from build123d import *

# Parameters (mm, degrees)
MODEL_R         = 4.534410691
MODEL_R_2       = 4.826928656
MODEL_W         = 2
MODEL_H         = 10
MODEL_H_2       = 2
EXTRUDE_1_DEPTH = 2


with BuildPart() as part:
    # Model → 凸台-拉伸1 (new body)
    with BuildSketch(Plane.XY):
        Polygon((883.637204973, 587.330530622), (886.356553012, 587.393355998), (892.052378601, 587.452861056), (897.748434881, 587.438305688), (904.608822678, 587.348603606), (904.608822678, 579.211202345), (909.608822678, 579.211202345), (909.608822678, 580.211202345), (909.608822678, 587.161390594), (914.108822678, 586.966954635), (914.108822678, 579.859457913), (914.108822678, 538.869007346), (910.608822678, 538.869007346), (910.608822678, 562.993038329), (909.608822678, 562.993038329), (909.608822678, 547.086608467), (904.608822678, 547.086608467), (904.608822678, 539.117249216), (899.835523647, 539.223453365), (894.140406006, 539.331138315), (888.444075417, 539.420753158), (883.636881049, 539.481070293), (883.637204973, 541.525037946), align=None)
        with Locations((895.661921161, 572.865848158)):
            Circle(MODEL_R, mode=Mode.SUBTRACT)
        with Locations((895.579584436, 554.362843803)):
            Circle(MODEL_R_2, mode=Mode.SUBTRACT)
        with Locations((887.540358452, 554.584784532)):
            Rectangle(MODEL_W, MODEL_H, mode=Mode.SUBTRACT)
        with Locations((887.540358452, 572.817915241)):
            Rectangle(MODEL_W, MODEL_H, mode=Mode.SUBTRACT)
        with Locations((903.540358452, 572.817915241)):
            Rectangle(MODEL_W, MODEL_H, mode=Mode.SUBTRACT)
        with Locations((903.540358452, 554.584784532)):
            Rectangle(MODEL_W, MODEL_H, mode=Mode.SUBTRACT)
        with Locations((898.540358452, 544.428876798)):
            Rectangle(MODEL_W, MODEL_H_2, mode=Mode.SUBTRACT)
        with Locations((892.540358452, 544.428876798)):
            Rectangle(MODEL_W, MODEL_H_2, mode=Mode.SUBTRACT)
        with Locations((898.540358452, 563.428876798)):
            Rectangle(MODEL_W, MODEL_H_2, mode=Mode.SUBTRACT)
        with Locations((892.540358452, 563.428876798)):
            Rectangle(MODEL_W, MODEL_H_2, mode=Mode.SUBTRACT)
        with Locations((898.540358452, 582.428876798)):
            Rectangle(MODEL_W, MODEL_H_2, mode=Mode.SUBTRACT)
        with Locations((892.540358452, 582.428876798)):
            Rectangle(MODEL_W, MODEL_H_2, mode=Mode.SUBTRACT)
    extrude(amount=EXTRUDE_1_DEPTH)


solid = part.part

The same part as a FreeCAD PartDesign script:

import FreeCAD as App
import Part
import Sketcher

V = App.Vector

doc = App.newDocument("Part")
body = doc.addObject("PartDesign::Body", "Body")

sketch1 = doc.addObject("Sketcher::SketchObject", "Sketch")
body.addObject(sketch1)
sketch1.AttachmentSupport = (doc.XY_Plane, [""])
sketch1.MapMode = "FlatFace"
sketch1.addGeometry([
    Part.LineSegment(V(886.356553, 587.393356, 0), V(883.637205, 587.330531, 0)),
    Part.LineSegment(V(883.637205, 587.330531, 0), V(883.637205, 541.525038, 0)),
    Part.LineSegment(V(883.637205, 541.525038, 0), V(883.636881, 539.48107, 0)),
    Part.LineSegment(V(883.636881, 539.48107, 0), V(888.444075, 539.420753, 0)),
    Part.LineSegment(V(888.444075, 539.420753, 0), V(894.140406, 539.331138, 0)),
    Part.LineSegment(V(894.140406, 539.331138, 0), V(899.835524, 539.223453, 0)),
    Part.LineSegment(V(899.835524, 539.223453, 0), V(904.608823, 539.117249, 0)),
    Part.LineSegment(V(904.608823, 539.117249, 0), V(904.608823, 547.086608, 0)),
    Part.LineSegment(V(904.608823, 547.086608, 0), V(909.608823, 547.086608, 0)),
    Part.LineSegment(V(909.608823, 547.086608, 0), V(909.608823, 562.993038, 0)),
    Part.LineSegment(V(909.608823, 562.993038, 0), V(910.608823, 562.993038, 0)),
    Part.LineSegment(V(910.608823, 562.993038, 0), V(910.608823, 538.869007, 0)),
    Part.LineSegment(V(910.608823, 538.869007, 0), V(914.108823, 538.869007, 0)),
    Part.LineSegment(V(914.108823, 538.869007, 0), V(914.108823, 586.966955, 0)),
    Part.LineSegment(V(914.108823, 586.966955, 0), V(909.608823, 587.161391, 0)),
    Part.LineSegment(V(909.608823, 587.161391, 0), V(909.608823, 579.211202, 0)),
    Part.LineSegment(V(909.608823, 579.211202, 0), V(904.608823, 579.211202, 0)),
    Part.LineSegment(V(904.608823, 579.211202, 0), V(904.608823, 587.348604, 0)),
    Part.LineSegment(V(904.608823, 587.348604, 0), V(897.748435, 587.438306, 0)),
    Part.LineSegment(V(897.748435, 587.438306, 0), V(892.052379, 587.452861, 0)),
    Part.LineSegment(V(892.052379, 587.452861, 0), V(886.356553, 587.393356, 0)),
    Part.LineSegment(V(897.540358, 543.428877, 0), V(897.540358, 545.428877, 0)),
    Part.LineSegment(V(897.540358, 545.428877, 0), V(899.540358, 545.428877, 0)),
    Part.LineSegment(V(899.540358, 545.428877, 0), V(899.540358, 543.428877, 0)),
    Part.LineSegment(V(899.540358, 543.428877, 0), V(897.540358, 543.428877, 0)),
    Part.LineSegment(V(902.540358, 549.584785, 0), V(902.540358, 559.584785, 0)),
    Part.LineSegment(V(902.540358, 559.584785, 0), V(904.540358, 559.584785, 0)),
    Part.LineSegment(V(904.540358, 559.584785, 0), V(904.540358, 549.584785, 0)),
    Part.LineSegment(V(904.540358, 549.584785, 0), V(902.540358, 549.584785, 0)),
    Part.Circle(V(895.579584, 554.362844, 0), V(0, 0, 1), 4.826929),
    Part.LineSegment(V(891.540358, 543.428877, 0), V(891.540358, 545.428877, 0)),
    Part.LineSegment(V(891.540358, 545.428877, 0), V(893.540358, 545.428877, 0)),
    Part.LineSegment(V(893.540358, 545.428877, 0), V(893.540358, 543.428877, 0)),
    Part.LineSegment(V(893.540358, 543.428877, 0), V(891.540358, 543.428877, 0)),
    Part.LineSegment(V(886.540358, 549.584785, 0), V(886.540358, 559.584785, 0)),
    Part.LineSegment(V(886.540358, 559.584785, 0), V(888.540358, 559.584785, 0)),
    Part.LineSegment(V(888.540358, 559.584785, 0), V(888.540358, 549.584785, 0)),
    Part.LineSegment(V(888.540358, 549.584785, 0), V(886.540358, 549.584785, 0)),
    Part.LineSegment(V(902.540358, 567.817915, 0), V(902.540358, 577.817915, 0)),
    Part.LineSegment(V(902.540358, 577.817915, 0), V(904.540358, 577.817915, 0)),
    Part.LineSegment(V(904.540358, 577.817915, 0), V(904.540358, 567.817915, 0)),
    Part.LineSegment(V(904.540358, 567.817915, 0), V(902.540358, 567.817915, 0)),
    Part.LineSegment(V(897.540358, 562.428877, 0), V(897.540358, 564.428877, 0)),
    Part.LineSegment(V(897.540358, 564.428877, 0), V(899.540358, 564.428877, 0)),
    Part.LineSegment(V(899.540358, 564.428877, 0), V(899.540358, 562.428877, 0)),
    Part.LineSegment(V(899.540358, 562.428877, 0), V(897.540358, 562.428877, 0)),
    Part.Circle(V(895.661921, 572.865848, 0), V(0, 0, 1), 4.534411),
    Part.LineSegment(V(897.540358, 581.428877, 0), V(897.540358, 583.428877, 0)),
    Part.LineSegment(V(897.540358, 583.428877, 0), V(899.540358, 583.428877, 0)),
    Part.LineSegment(V(899.540358, 583.428877, 0), V(899.540358, 581.428877, 0)),
    Part.LineSegment(V(899.540358, 581.428877, 0), V(897.540358, 581.428877, 0)),
    Part.LineSegment(V(891.540358, 562.428877, 0), V(891.540358, 564.428877, 0)),
    Part.LineSegment(V(891.540358, 564.428877, 0), V(893.540358, 564.428877, 0)),
    Part.LineSegment(V(893.540358, 564.428877, 0), V(893.540358, 562.428877, 0)),
    Part.LineSegment(V(893.540358, 562.428877, 0), V(891.540358, 562.428877, 0)),
    Part.LineSegment(V(886.540358, 567.817915, 0), V(886.540358, 577.817915, 0)),
    Part.LineSegment(V(886.540358, 577.817915, 0), V(888.540358, 577.817915, 0)),
    Part.LineSegment(V(888.540358, 577.817915, 0), V(888.540358, 567.817915, 0)),
    Part.LineSegment(V(888.540358, 567.817915, 0), V(886.540358, 567.817915, 0)),
    Part.LineSegment(V(891.540358, 581.428877, 0), V(891.540358, 583.428877, 0)),
    Part.LineSegment(V(891.540358, 583.428877, 0), V(893.540358, 583.428877, 0)),
    Part.LineSegment(V(893.540358, 583.428877, 0), V(893.540358, 581.428877, 0)),
    Part.LineSegment(V(893.540358, 581.428877, 0), V(891.540358, 581.428877, 0)),
], False)
sketch1.addConstraint([
    Sketcher.Constraint("Coincident", 0, 2, 1, 1),
    Sketcher.Constraint("Coincident", 1, 2, 2, 1),
    Sketcher.Constraint("Coincident", 2, 2, 3, 1),
    Sketcher.Constraint("Coincident", 3, 2, 4, 1),
    Sketcher.Constraint("Coincident", 4, 2, 5, 1),
    Sketcher.Constraint("Coincident", 5, 2, 6, 1),
    Sketcher.Constraint("Coincident", 6, 2, 7, 1),
    Sketcher.Constraint("Coincident", 7, 2, 8, 1),
    Sketcher.Constraint("Coincident", 8, 2, 9, 1),
    Sketcher.Constraint("Coincident", 9, 2, 10, 1),
    Sketcher.Constraint("Coincident", 10, 2, 11, 1),
    Sketcher.Constraint("Coincident", 11, 2, 12, 1),
    Sketcher.Constraint("Coincident", 12, 2, 13, 1),
    Sketcher.Constraint("Coincident", 13, 2, 14, 1),
    Sketcher.Constraint("Coincident", 14, 2, 15, 1),
    Sketcher.Constraint("Coincident", 15, 2, 16, 1),
    Sketcher.Constraint("Coincident", 16, 2, 17, 1),
    Sketcher.Constraint("Coincident", 17, 2, 18, 1),
    Sketcher.Constraint("Coincident", 18, 2, 19, 1),
    Sketcher.Constraint("Coincident", 19, 2, 20, 1),
    Sketcher.Constraint("Coincident", 20, 2, 0, 1),
    Sketcher.Constraint("Coincident", 21, 2, 22, 1),
    Sketcher.Constraint("Coincident", 22, 2, 23, 1),
    Sketcher.Constraint("Coincident", 23, 2, 24, 1),
    Sketcher.Constraint("Coincident", 24, 2, 21, 1),
    Sketcher.Constraint("Coincident", 25, 2, 26, 1),
    Sketcher.Constraint("Coincident", 26, 2, 27, 1),
    Sketcher.Constraint("Coincident", 27, 2, 28, 1),
    Sketcher.Constraint("Coincident", 28, 2, 25, 1),
    Sketcher.Constraint("Coincident", 30, 2, 31, 1),
    Sketcher.Constraint("Coincident", 31, 2, 32, 1),
    Sketcher.Constraint("Coincident", 32, 2, 33, 1),
    Sketcher.Constraint("Coincident", 33, 2, 30, 1),
    Sketcher.Constraint("Coincident", 34, 2, 35, 1),
    Sketcher.Constraint("Coincident", 35, 2, 36, 1),
    Sketcher.Constraint("Coincident", 36, 2, 37, 1),
    Sketcher.Constraint("Coincident", 37, 2, 34, 1),
    Sketcher.Constraint("Coincident", 38, 2, 39, 1),
    Sketcher.Constraint("Coincident", 39, 2, 40, 1),
    Sketcher.Constraint("Coincident", 40, 2, 41, 1),
    Sketcher.Constraint("Coincident", 41, 2, 38, 1),
    Sketcher.Constraint("Coincident", 42, 2, 43, 1),
    Sketcher.Constraint("Coincident", 43, 2, 44, 1),
    Sketcher.Constraint("Coincident", 44, 2, 45, 1),
    Sketcher.Constraint("Coincident", 45, 2, 42, 1),
    Sketcher.Constraint("Coincident", 47, 2, 48, 1),
    Sketcher.Constraint("Coincident", 48, 2, 49, 1),
    Sketcher.Constraint("Coincident", 49, 2, 50, 1),
    Sketcher.Constraint("Coincident", 50, 2, 47, 1),
    Sketcher.Constraint("Coincident", 51, 2, 52, 1),
    Sketcher.Constraint("Coincident", 52, 2, 53, 1),
    Sketcher.Constraint("Coincident", 53, 2, 54, 1),
    Sketcher.Constraint("Coincident", 54, 2, 51, 1),
    Sketcher.Constraint("Coincident", 55, 2, 56, 1),
    Sketcher.Constraint("Coincident", 56, 2, 57, 1),
    Sketcher.Constraint("Coincident", 57, 2, 58, 1),
    Sketcher.Constraint("Coincident", 58, 2, 55, 1),
    Sketcher.Constraint("Coincident", 59, 2, 60, 1),
    Sketcher.Constraint("Coincident", 60, 2, 61, 1),
    Sketcher.Constraint("Coincident", 61, 2, 62, 1),
    Sketcher.Constraint("Coincident", 62, 2, 59, 1),
    Sketcher.Constraint("Vertical", 1),
    Sketcher.Constraint("Vertical", 7),
    Sketcher.Constraint("Horizontal", 8),
    Sketcher.Constraint("Vertical", 9),
    Sketcher.Constraint("Horizontal", 10),
    Sketcher.Constraint("Vertical", 11),
    Sketcher.Constraint("Horizontal", 12),
    Sketcher.Constraint("Vertical", 13),
    Sketcher.Constraint("Vertical", 15),
    Sketcher.Constraint("Horizontal", 16),
    Sketcher.Constraint("Vertical", 17),
    Sketcher.Constraint("Vertical", 21),
    Sketcher.Constraint("Horizontal", 22),
    Sketcher.Constraint("Vertical", 23),
    Sketcher.Constraint("Horizontal", 24),
    Sketcher.Constraint("Vertical", 25),
    Sketcher.Constraint("Horizontal", 26),
    Sketcher.Constraint("Vertical", 27),
    Sketcher.Constraint("Horizontal", 28),
    Sketcher.Constraint("Vertical", 30),
    Sketcher.Constraint("Horizontal", 31),
    Sketcher.Constraint("Vertical", 32),
    Sketcher.Constraint("Horizontal", 33),
    Sketcher.Constraint("Vertical", 34),
    Sketcher.Constraint("Horizontal", 35),
    Sketcher.Constraint("Vertical", 36),
    Sketcher.Constraint("Horizontal", 37),
    Sketcher.Constraint("Vertical", 38),
    Sketcher.Constraint("Horizontal", 39),
    Sketcher.Constraint("Vertical", 40),
    Sketcher.Constraint("Horizontal", 41),
    Sketcher.Constraint("Vertical", 42),
    Sketcher.Constraint("Horizontal", 43),
    Sketcher.Constraint("Vertical", 44),
    Sketcher.Constraint("Horizontal", 45),
    Sketcher.Constraint("Vertical", 47),
    Sketcher.Constraint("Horizontal", 48),
    Sketcher.Constraint("Vertical", 49),
    Sketcher.Constraint("Horizontal", 50),
    Sketcher.Constraint("Vertical", 51),
    Sketcher.Constraint("Horizontal", 52),
    Sketcher.Constraint("Vertical", 53),
    Sketcher.Constraint("Horizontal", 54),
    Sketcher.Constraint("Vertical", 55),
    Sketcher.Constraint("Horizontal", 56),
    Sketcher.Constraint("Vertical", 57),
    Sketcher.Constraint("Horizontal", 58),
    Sketcher.Constraint("Vertical", 59),
    Sketcher.Constraint("Horizontal", 60),
    Sketcher.Constraint("Vertical", 61),
    Sketcher.Constraint("Horizontal", 62),
    Sketcher.Constraint("Horizontal", 22, 2, 30, 2),
    Sketcher.Constraint("Horizontal", 24, 2, 32, 2),
    Sketcher.Constraint("Horizontal", 26, 2, 34, 2),
    Sketcher.Constraint("Horizontal", 28, 2, 36, 2),
    Sketcher.Constraint("Horizontal", 43, 2, 51, 2),
    Sketcher.Constraint("Horizontal", 45, 2, 53, 2),
    Sketcher.Constraint("Horizontal", 39, 2, 55, 2),
    Sketcher.Constraint("Horizontal", 41, 2, 57, 2),
    Sketcher.Constraint("Horizontal", 48, 2, 59, 2),
    Sketcher.Constraint("Horizontal", 50, 2, 61, 2),
    Sketcher.Constraint("Vertical", 9, 2, 14, 2),
    Sketcher.Constraint("Vertical", 7, 2, 16, 2),
    Sketcher.Constraint("Vertical", 28, 2, 38, 2),
    Sketcher.Constraint("Vertical", 27, 2, 39, 2),
    Sketcher.Constraint("Vertical", 24, 2, 42, 2),
    Sketcher.Constraint("Vertical", 23, 2, 43, 2),
    Sketcher.Constraint("Vertical", 45, 2, 47, 2),
    Sketcher.Constraint("Vertical", 44, 2, 48, 2),
    Sketcher.Constraint("Vertical", 33, 2, 51, 2),
    Sketcher.Constraint("Vertical", 32, 2, 52, 2),
    Sketcher.Constraint("Vertical", 37, 2, 55, 2),
    Sketcher.Constraint("Vertical", 36, 2, 56, 2),
    Sketcher.Constraint("Vertical", 54, 2, 59, 2),
    Sketcher.Constraint("Vertical", 53, 2, 60, 2),
    Sketcher.Constraint("Equal", 24, 26),
    Sketcher.Constraint("Equal", 28, 31),
    Sketcher.Constraint("Equal", 33, 35),
    Sketcher.Constraint("Equal", 62, 21),
    Sketcher.Constraint("Equal", 36, 38),
    Sketcher.Constraint("Equal", 32, 42),
    Sketcher.Constraint("Equal", 44, 47),
    Sketcher.Constraint("Equal", 5, 20),
    Sketcher.Constraint("DistanceX", 8, 1, 8, 2, 5.0),
    Sketcher.Constraint("DistanceX", 10, 1, 10, 2, 1.0),
    Sketcher.Constraint("DistanceX", 22, 1, 22, 2, 2.0),
    Sketcher.Constraint("DistanceY", 25, 1, 25, 2, 10.0),
    Sketcher.Constraint("DistanceX", 12, 1, 12, 2, 3.5),
    Sketcher.Constraint("Diameter", 46, 9.068821),
    Sketcher.Constraint("Diameter", 29, 9.653857),
    Sketcher.Constraint("DistanceY", 17, 1, 17, 2, 8.137401),
    Sketcher.Constraint("Distance", 14, 4.504199),
    Sketcher.Constraint("DistanceY", 7, 1, 7, 2, 7.969359),
    Sketcher.Constraint("DistanceY", 9, 1, 9, 2, 15.90643),
    Sketcher.Constraint("DistanceY", 11, 2, 11, 1, 24.124031),
    Sketcher.Constraint("DistanceY", 15, 2, 15, 1, 7.950188),
    Sketcher.Constraint("Distance", 6, 4.77448),
    Sketcher.Constraint("DistanceY", 1, 2, 1, 1, 45.805493),
    Sketcher.Constraint("DistanceY", 13, 1, 13, 2, 48.097947),
    Sketcher.Constraint("DistanceX", -1, 1, 46, 3, 895.661921),
    Sketcher.Constraint("DistanceY", -1, 1, 46, 3, 572.865848),
    Sketcher.Constraint("DistanceY", -1, 1, 0, 2, 587.330531),
    Sketcher.Constraint("DistanceX", -1, 1, 2, 2, 883.636881),
    Sketcher.Constraint("DistanceY", -1, 1, 2, 2, 539.48107),
    Sketcher.Constraint("DistanceY", -1, 1, 4, 2, 539.331138),
    Sketcher.Constraint("DistanceY", -1, 1, 6, 2, 539.117249),
    Sketcher.Constraint("DistanceX", -1, 1, 19, 2, 892.052379),
    Sketcher.Constraint("DistanceY", -1, 1, 19, 2, 587.452861),
    Sketcher.Constraint("DistanceX", -1, 1, 21, 2, 897.540358),
    Sketcher.Constraint("DistanceX", -1, 1, 25, 2, 902.540358),
    Sketcher.Constraint("DistanceX", -1, 1, 30, 2, 891.540358),
    Sketcher.Constraint("DistanceX", -1, 1, 34, 2, 886.540358),
    Sketcher.Constraint("Distance", 0, 2.720074),
    Sketcher.Constraint("Distance", 3, 4.807573),
    Sketcher.Constraint("Distance", 4, 5.697035),
    Sketcher.Constraint("Distance", 5, 5.696136),
    Sketcher.Constraint("Distance", 18, 6.860974),
    Sketcher.Constraint("Distance", 19, 5.696075),
    Sketcher.Constraint("DistanceX", -1, 1, 29, 3, 895.579584),
    Sketcher.Constraint("DistanceY", -1, 1, 29, 3, 554.362844),
    Sketcher.Constraint("DistanceX", -1, 1, 0, 2, 883.637205),
    Sketcher.Constraint("DistanceX", -1, 1, 3, 2, 888.444075),
    Sketcher.Constraint("DistanceX", -1, 1, 5, 2, 899.835524),
    Sketcher.Constraint("DistanceY", -1, 1, 21, 2, 545.428877),
    Sketcher.Constraint("DistanceY", -1, 1, 25, 2, 559.584785),
    Sketcher.Constraint("DistanceY", -1, 1, 38, 2, 577.817915),
    Sketcher.Constraint("DistanceY", -1, 1, 42, 2, 564.428877),
    Sketcher.Constraint("DistanceY", -1, 1, 47, 2, 583.428877),
])
pad1 = doc.addObject("PartDesign::Pad", "Pad")
body.addObject(pad1)
pad1.Profile = sketch1
pad1.Length = 2

doc.recompute()
